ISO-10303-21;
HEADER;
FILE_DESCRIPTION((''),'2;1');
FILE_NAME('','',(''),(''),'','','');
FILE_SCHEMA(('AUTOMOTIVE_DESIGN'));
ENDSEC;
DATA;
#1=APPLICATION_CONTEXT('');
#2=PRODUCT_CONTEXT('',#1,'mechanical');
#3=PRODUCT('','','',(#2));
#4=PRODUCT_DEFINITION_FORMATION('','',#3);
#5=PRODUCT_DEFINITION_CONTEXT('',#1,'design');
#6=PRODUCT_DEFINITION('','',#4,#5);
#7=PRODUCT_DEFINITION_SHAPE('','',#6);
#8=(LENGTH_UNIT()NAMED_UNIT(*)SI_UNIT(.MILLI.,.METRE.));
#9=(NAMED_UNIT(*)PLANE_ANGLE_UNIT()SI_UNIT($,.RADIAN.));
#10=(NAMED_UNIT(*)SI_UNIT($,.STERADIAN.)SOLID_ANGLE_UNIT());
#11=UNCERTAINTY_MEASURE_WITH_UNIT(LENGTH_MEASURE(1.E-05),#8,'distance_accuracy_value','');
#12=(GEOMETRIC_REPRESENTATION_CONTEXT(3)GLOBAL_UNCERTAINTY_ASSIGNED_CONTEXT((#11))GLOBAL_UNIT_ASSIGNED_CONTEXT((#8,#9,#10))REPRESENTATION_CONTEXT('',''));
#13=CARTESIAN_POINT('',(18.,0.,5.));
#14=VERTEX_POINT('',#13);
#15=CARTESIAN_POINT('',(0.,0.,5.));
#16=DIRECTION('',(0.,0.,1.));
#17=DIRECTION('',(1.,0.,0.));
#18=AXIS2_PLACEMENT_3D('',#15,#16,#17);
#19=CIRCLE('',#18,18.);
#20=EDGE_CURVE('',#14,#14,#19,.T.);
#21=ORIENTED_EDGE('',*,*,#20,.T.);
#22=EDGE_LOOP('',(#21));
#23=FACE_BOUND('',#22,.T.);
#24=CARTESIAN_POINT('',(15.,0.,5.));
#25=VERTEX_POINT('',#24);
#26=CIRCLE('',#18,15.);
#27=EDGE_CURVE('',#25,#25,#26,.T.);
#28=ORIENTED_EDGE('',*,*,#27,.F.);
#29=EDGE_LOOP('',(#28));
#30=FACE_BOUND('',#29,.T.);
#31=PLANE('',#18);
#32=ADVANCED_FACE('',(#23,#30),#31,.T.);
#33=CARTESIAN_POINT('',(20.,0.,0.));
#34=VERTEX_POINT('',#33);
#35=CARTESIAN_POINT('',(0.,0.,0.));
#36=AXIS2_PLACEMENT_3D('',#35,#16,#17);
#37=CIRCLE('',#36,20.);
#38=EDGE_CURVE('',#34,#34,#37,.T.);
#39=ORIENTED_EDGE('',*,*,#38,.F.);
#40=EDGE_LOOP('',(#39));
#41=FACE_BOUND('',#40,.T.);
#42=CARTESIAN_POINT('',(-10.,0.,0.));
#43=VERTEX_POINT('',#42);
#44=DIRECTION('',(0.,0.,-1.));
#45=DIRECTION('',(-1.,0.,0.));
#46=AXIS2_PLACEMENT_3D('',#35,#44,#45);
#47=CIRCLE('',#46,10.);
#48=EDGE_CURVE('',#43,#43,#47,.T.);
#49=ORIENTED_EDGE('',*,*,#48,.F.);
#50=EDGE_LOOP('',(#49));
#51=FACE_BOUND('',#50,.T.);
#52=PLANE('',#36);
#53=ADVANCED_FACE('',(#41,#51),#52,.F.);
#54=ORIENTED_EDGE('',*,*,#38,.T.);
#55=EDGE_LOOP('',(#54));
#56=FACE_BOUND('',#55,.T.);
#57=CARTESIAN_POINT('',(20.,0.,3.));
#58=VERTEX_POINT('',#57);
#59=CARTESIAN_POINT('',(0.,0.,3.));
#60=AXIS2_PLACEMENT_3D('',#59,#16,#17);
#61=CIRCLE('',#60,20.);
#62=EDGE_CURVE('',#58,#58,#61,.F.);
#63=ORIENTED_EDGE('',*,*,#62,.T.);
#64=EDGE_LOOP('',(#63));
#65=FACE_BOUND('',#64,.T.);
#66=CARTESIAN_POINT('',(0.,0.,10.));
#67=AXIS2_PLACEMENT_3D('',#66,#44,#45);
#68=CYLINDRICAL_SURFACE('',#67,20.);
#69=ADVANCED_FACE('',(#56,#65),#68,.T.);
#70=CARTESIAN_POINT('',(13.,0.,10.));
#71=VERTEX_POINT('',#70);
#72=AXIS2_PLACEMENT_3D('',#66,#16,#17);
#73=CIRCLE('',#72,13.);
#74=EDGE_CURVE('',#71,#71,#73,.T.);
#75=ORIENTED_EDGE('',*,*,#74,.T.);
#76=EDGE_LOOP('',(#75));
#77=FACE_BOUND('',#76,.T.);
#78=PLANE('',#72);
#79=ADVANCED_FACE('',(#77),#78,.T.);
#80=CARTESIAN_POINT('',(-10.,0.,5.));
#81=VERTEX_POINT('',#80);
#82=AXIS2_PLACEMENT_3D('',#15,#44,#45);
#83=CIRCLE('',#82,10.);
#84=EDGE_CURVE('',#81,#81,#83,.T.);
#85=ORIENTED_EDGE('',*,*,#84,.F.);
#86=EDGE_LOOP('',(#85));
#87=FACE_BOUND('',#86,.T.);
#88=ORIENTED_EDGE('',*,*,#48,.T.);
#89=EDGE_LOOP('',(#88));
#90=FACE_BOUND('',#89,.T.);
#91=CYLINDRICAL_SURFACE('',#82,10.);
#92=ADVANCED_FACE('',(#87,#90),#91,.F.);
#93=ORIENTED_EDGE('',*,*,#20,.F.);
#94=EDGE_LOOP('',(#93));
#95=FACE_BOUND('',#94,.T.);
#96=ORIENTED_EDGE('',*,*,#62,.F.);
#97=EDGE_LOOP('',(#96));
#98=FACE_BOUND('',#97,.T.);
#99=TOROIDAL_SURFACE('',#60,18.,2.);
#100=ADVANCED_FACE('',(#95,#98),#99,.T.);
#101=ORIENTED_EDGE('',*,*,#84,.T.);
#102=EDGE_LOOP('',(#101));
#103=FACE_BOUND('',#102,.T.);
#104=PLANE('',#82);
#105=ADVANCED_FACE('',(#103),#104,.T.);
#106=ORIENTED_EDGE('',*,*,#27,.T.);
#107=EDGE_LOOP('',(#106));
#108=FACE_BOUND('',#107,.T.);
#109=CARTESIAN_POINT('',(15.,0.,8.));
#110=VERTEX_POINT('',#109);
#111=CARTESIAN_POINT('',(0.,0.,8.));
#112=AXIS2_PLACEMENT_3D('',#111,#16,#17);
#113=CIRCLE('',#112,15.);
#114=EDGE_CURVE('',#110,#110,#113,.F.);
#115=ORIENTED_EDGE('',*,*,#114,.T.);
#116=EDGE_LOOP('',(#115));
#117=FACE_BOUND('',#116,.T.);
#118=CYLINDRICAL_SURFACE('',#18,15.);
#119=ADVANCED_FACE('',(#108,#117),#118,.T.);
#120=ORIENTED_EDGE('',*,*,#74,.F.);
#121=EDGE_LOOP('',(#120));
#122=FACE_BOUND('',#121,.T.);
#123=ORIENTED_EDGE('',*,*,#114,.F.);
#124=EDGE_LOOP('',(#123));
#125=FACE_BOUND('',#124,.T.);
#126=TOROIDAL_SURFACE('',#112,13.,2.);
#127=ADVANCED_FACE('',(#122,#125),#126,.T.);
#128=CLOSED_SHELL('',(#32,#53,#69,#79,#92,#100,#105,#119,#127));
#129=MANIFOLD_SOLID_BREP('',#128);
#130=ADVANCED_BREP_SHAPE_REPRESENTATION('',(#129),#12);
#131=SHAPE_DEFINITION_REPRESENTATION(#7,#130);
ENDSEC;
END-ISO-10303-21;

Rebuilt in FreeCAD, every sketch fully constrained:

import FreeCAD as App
import Part
import Sketcher

V = App.Vector
Q = App.Units.Quantity


def edges_at(feature, points):
    """Names of the edges that pass closest to the given points."""
    edges = feature.Shape.Edges
    near = lambda p: min(range(len(edges)), key=lambda i: edges[i].distToShape(Part.Vertex(*p))[0])
    return sorted({f"Edge{near(p) + 1}" for p in points})

doc = App.newDocument("Part")
body = doc.addObject("PartDesign::Body", "Body")

sketch1 = body.newObject("Sketcher::SketchObject", "Sketch")
sketch1.AttachmentSupport = (doc.getObject("XY_Plane"), [""])
sketch1.MapMode = "FlatFace"
sketch1.addGeometry(Part.Circle(V(0, 0, 0), V(0, 0, 1), 20), False)
sketch1.addConstraint(Sketcher.Constraint("Coincident", 0, 3, -1, 1))
sketch1.addConstraint(Sketcher.Constraint("Diameter", 0, Q("40 mm")))
pad1 = body.newObject("PartDesign::Pad", "Pad")
pad1.Profile = sketch1
pad1.Length = 10

sketch2 = body.newObject("Sketcher::SketchObject", "Sketch001")
sketch2.AttachmentSupport = (doc.getObject("XY_Plane"), [""])
sketch2.MapMode = "FlatFace"
sketch2.addGeometry(Part.Circle(V(0, 0, 0), V(0, 0, 1), 10), False)
sketch2.addConstraint(Sketcher.Constraint("Coincident", 0, 3, -1, 1))
sketch2.addConstraint(Sketcher.Constraint("Diameter", 0, Q("20 mm")))
pocket1 = body.newObject("PartDesign::Pocket", "Pocket")
pocket1.Profile = sketch2
pocket1.Length = 5
pocket1.Reversed = True

sketch3 = body.newObject("Sketcher::SketchObject", "Sketch002")
sketch3.AttachmentSupport = (doc.getObject("XY_Plane"), [""])
sketch3.MapMode = "FlatFace"
sketch3.AttachmentOffset = App.Placement(V(0, 0, 5), App.Rotation())
sketch3.addGeometry(Part.Circle(V(0, 0, 0), V(0, 0, 1), 20), False)
sketch3.addGeometry(Part.Circle(V(0, 0, 0), V(0, 0, 1), 15), False)
sketch3.addConstraint(Sketcher.Constraint("Coincident", 0, 3, -1, 1))
sketch3.addConstraint(Sketcher.Constraint("Coincident", 1, 3, -1, 1))
sketch3.addConstraint(Sketcher.Constraint("Diameter", 0, Q("40 mm")))
sketch3.addConstraint(Sketcher.Constraint("Diameter", 1, Q("30 mm")))
pocket2 = body.newObject("PartDesign::Pocket", "Pocket001")
pocket2.Profile = sketch3
pocket2.Length = 5
pocket2.Reversed = True
doc.recompute()

fillet = body.newObject("PartDesign::Fillet", "Fillet")
fillet.Base = (pocket2, edges_at(pocket2, [(-15, 0, 10)]))
fillet.Radius = 2
doc.recompute()

fillet2 = body.newObject("PartDesign::Fillet", "Fillet001")
fillet2.Base = (fillet, edges_at(fillet, [(-20, 0, 5)]))
fillet2.Radius = 2

doc.recompute()
